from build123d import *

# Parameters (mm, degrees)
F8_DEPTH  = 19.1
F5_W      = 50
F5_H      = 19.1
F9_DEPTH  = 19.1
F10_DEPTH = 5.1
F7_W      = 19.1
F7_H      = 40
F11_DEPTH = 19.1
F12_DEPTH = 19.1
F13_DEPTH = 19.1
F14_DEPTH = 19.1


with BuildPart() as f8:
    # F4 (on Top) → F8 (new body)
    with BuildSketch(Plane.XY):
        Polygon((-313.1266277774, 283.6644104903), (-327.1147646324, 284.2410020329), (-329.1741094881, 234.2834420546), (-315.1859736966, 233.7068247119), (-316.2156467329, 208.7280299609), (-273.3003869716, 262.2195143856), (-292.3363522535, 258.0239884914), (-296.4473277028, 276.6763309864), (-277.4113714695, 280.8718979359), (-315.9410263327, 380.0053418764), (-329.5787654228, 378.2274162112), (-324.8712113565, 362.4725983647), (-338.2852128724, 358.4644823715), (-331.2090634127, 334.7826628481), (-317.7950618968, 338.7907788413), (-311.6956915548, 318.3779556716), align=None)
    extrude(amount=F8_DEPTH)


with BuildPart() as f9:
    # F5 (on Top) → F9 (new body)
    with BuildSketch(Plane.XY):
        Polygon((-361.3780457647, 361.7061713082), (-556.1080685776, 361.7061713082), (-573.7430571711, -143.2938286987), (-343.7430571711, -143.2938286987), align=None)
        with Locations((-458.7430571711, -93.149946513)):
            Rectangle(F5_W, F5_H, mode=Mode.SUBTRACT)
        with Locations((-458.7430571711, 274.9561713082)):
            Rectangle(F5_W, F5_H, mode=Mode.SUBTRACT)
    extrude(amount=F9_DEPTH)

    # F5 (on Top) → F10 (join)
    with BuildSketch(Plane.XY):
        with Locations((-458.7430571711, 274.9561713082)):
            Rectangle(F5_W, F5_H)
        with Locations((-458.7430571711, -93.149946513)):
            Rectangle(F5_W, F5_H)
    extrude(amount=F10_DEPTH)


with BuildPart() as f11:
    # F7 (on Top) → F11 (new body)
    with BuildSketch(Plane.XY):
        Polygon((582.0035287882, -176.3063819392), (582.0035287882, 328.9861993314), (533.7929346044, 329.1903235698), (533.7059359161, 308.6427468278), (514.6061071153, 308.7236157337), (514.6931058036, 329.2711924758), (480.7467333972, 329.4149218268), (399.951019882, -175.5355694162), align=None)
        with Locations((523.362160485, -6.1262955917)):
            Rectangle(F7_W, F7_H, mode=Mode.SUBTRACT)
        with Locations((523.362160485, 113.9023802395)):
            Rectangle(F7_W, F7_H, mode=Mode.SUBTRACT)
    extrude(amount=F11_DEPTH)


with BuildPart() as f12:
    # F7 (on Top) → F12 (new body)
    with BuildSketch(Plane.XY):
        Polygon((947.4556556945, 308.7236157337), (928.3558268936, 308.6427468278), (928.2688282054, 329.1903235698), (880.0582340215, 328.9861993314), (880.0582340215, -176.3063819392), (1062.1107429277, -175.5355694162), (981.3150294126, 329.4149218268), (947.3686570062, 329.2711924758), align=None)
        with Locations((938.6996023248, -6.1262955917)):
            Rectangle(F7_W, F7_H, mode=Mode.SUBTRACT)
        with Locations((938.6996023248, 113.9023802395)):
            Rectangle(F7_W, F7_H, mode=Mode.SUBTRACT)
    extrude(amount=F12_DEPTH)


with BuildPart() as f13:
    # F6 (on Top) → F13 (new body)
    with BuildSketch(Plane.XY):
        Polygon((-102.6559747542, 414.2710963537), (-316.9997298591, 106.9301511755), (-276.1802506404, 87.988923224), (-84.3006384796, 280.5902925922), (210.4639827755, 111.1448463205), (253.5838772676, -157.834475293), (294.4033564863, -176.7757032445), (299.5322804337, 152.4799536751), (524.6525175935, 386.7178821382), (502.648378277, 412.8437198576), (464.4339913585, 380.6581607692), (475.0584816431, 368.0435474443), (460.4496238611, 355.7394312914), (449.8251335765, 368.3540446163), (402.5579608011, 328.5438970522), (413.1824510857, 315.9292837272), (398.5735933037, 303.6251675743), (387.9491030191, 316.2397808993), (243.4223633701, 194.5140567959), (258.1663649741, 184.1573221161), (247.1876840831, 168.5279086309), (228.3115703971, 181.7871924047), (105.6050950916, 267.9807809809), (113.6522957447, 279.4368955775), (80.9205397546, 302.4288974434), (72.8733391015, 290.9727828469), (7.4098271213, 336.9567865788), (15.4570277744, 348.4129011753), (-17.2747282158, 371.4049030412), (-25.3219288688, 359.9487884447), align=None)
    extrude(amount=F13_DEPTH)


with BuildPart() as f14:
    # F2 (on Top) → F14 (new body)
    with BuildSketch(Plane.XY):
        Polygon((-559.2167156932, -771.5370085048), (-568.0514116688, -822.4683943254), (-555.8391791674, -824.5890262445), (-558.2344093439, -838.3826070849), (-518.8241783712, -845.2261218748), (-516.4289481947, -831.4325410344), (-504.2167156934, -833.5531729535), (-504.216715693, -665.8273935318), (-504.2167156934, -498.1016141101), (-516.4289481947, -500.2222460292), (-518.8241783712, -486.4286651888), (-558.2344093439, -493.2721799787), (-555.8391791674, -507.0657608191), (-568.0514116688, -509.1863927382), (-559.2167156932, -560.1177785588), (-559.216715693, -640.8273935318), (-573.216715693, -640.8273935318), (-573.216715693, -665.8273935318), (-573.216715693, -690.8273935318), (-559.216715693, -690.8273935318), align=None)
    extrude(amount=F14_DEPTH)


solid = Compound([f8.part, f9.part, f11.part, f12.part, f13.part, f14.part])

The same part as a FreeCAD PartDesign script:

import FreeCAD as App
import Part
import Sketcher
Q = App.Units.Quantity


def add_polygon(sketch, points):
    """Adds a closed chain of lines whose ends are joined by coincident constraints."""
    first, n = sketch.GeometryCount, len(points)
    for a, b in zip(points, points[1:] + points[:1]):
        sketch.addGeometry(Part.LineSegment(App.Vector(*a, 0), App.Vector(*b, 0)), False)
    for i in range(n):
        sketch.addConstraint(Sketcher.Constraint("Coincident", first + i, 2, first + (i + 1) % n, 1))

doc = App.newDocument("Part")
body = doc.addObject("PartDesign::Body", "Body")

# Sketch on XY plane
sketch1 = body.newObject("Sketcher::SketchObject", "Sketch")
sketch1.AttachmentSupport = (doc.getObject("XY_Plane"), [""])
sketch1.MapMode = "FlatFace"
add_polygon(sketch1, [(-313.126628, 283.66441), (-327.114765, 284.241002), (-329.174109, 234.283442), (-315.185974, 233.706825), (-316.215647, 208.72803), (-273.300387, 262.219514), (-292.336352, 258.023988), (-296.447328, 276.676331), (-277.411371, 280.871898), (-315.941026, 380.005342), (-329.578765, 378.227416), (-324.871211, 362.472598), (-338.285213, 358.464482), (-331.209063, 334.782663), (-317.795062, 338.790779), (-311.695692, 318.377956)])  # lines 0-15
sketch1.addConstraint(Sketcher.Constraint("Distance", 6, Q("19.1 mm")))
sketch1.addConstraint(Sketcher.Constraint("DistanceX", 9, 2, 0, 2, Q("2.464001 mm")))
sketch1.addConstraint(Sketcher.Constraint("DistanceX", 11, 2, 10, 2, Q("13.414002 mm")))
sketch1.addConstraint(Sketcher.Constraint("DistanceX", 12, 2, 13, 2, Q("13.414002 mm")))
sketch1.addConstraint(Sketcher.Constraint("Distance", 12, Q("24.716401 mm")))
sketch1.addConstraint(Sketcher.Constraint("DistanceY", -1, 1, 10, 2, Q("362.472598 mm")))
sketch1.addConstraint(Sketcher.Constraint("DistanceX", 8, 2, 6, 2, Q("19.493699 mm")))
sketch1.addConstraint(Sketcher.Constraint("DistanceY", 7, 2, 10, 2, Q("81.6007 mm")))
sketch1.addConstraint(Sketcher.Constraint("DistanceX", 12, 2, 0, 2, Q("4.094299 mm")))
sketch1.addConstraint(Sketcher.Constraint("DistanceX", 15, 2, 6, 2, Q("16.6793 mm")))
sketch1.addConstraint(Sketcher.Constraint("Distance", 3, Q("25.000008 mm")))
sketch1.addConstraint(Sketcher.Constraint("Distance", 4, Q("68.578848 mm")))
sketch1.addConstraint(Sketcher.Constraint("Distance", 5, Q("19.49283 mm")))
sketch1.addConstraint(Sketcher.Constraint("Distance", 7, Q("19.49283 mm")))
sketch1.addConstraint(Sketcher.Constraint("DistanceX", 1, 2, -1, 1, Q("329.174109 mm")))
sketch1.addConstraint(Sketcher.Constraint("DistanceY", -1, 1, 3, 2, Q("208.72803 mm")))
sketch1.addConstraint(Sketcher.Constraint("DistanceY", -1, 1, 5, 2, Q("258.023988 mm")))
sketch1.addConstraint(Sketcher.Constraint("DistanceY", -1, 1, 6, 2, Q("276.676331 mm")))
sketch1.addConstraint(Sketcher.Constraint("DistanceX", 7, 2, -1, 1, Q("277.411371 mm")))
sketch1.addConstraint(Sketcher.Constraint("DistanceY", -1, 1, 8, 2, Q("380.005342 mm")))
sketch1.addConstraint(Sketcher.Constraint("DistanceX", 10, 2, -1, 1, Q("324.871211 mm")))
sketch1.addConstraint(Sketcher.Constraint("DistanceX", 13, 2, -1, 1, Q("317.795062 mm")))
sketch1.addConstraint(Sketcher.Constraint("DistanceY", -1, 1, 13, 2, Q("338.790779 mm")))
sketch1.addConstraint(Sketcher.Constraint("DistanceX", 14, 2, -1, 1, Q("311.695692 mm")))
sketch1.addConstraint(Sketcher.Constraint("DistanceY", -1, 1, 15, 2, Q("283.66441 mm")))
sketch1.addConstraint(Sketcher.Constraint("DistanceY", 1, 2, 0, 2, Q("49.95756 mm")))
sketch1.addConstraint(Sketcher.Constraint("DistanceX", 0, 2, 2, 2, Q("11.928791 mm")))
sketch1.addConstraint(Sketcher.Constraint("DistanceY", 2, 2, 4, 2, Q("28.51269 mm")))
sketch1.addConstraint(Sketcher.Constraint("DistanceY", 6, 2, 0, 2, Q("7.564671 mm")))
sketch1.addConstraint(Sketcher.Constraint("DistanceY", 7, 2, 9, 2, Q("97.355518 mm")))
sketch1.addConstraint(Sketcher.Constraint("DistanceY", 11, 2, 8, 2, Q("21.54086 mm")))
sketch1.addConstraint(Sketcher.Constraint("Distance", 14, Q("21.304593 mm")))
pad1 = body.newObject("PartDesign::Pad", "Pad")
pad1.Profile = sketch1
pad1.Length = 19.1
body2 = doc.addObject("PartDesign::Body", "Body001")

# Sketch on XY plane
sketch2 = body2.newObject("Sketcher::SketchObject", "Sketch001")
sketch2.AttachmentSupport = (doc.getObject("XY_Plane001"), [""])
sketch2.MapMode = "FlatFace"
add_polygon(sketch2, [(-361, 362), (-556, 362), (-574, -143), (-344, -143)])  # lines 0-3
add_polygon(sketch2, [(-434, -103), (-484, -103), (-484, -84), (-434, -84)])  # lines 4-7
add_polygon(sketch2, [(-434, 265), (-484, 265), (-484, 285), (-434, 285)])  # lines 8-11
sketch2.addConstraint(Sketcher.Constraint("Horizontal", 0))
sketch2.addConstraint(Sketcher.Constraint("Horizontal", 2))
sketch2.addConstraint(Sketcher.Constraint("Horizontal", 4))
sketch2.addConstraint(Sketcher.Constraint("Vertical", 5))
sketch2.addConstraint(Sketcher.Constraint("Horizontal", 6))
sketch2.addConstraint(Sketcher.Constraint("Vertical", 7))
sketch2.addConstraint(Sketcher.Constraint("Horizontal", 8))
sketch2.addConstraint(Sketcher.Constraint("Vertical", 9))
sketch2.addConstraint(Sketcher.Constraint("Horizontal", 10))
sketch2.addConstraint(Sketcher.Constraint("Vertical", 11))
sketch2.addConstraint(Sketcher.Constraint("Vertical", 5, 2, 8, 2))
sketch2.addConstraint(Sketcher.Constraint("Vertical", 7, 2, 10, 2))
sketch2.addConstraint(Sketcher.Constraint("Equal", 7, 9))
sketch2.addConstraint(Sketcher.Constraint("Equal", 1, 3))
sketch2.addConstraint(Sketcher.Constraint("DistanceX", 2, 1, 2, 2, Q("230 mm")))
sketch2.addConstraint(Sketcher.Constraint("DistanceX", 4, 2, 4, 1, Q("50 mm")))
sketch2.addConstraint(Sketcher.Constraint("Angle", 1, Q("-92 deg")))
sketch2.addConstraint(Sketcher.Constraint("DistanceY", 5, 1, 5, 2, Q("19.1 mm")))
sketch2.addConstraint(Sketcher.Constraint("DistanceY", 1, 2, 0, 2, Q("505 mm")))
sketch2.addConstraint(Sketcher.Constraint("DistanceX", 1, 2, 4, 2, Q("90 mm")))
sketch2.addConstraint(Sketcher.Constraint("DistanceY", 8, 2, 0, 2, Q("96.3 mm")))
sketch2.addConstraint(Sketcher.Constraint("DistanceX", 0, 2, -1, 1, Q("556.108069 mm")))
sketch2.addConstraint(Sketcher.Constraint("DistanceY", -1, 1, 0, 2, Q("361.706171 mm")))
sketch2.addConstraint(Sketcher.Constraint("DistanceY", 4, 2, -1, 1, Q("102.699947 mm")))
pad2 = body2.newObject("PartDesign::Pad", "Pad001")
pad2.Profile = sketch2
pad2.Length = 19.1

# Sketch on XY plane
sketch3 = body2.newObject("Sketcher::SketchObject", "Sketch002")
sketch3.AttachmentSupport = (doc.getObject("XY_Plane001"), [""])
sketch3.MapMode = "FlatFace"
add_polygon(sketch3, [(-484, 285), (-484, 265), (-434, 265), (-434, 285)])  # lines 0-3
add_polygon(sketch3, [(-484, -84), (-484, -103), (-434, -103), (-434, -84)])  # lines 4-7
sketch3.addConstraint(Sketcher.Constraint("Vertical", 0))
sketch3.addConstraint(Sketcher.Constraint("Horizontal", 1))
sketch3.addConstraint(Sketcher.Constraint("Vertical", 2))
sketch3.addConstraint(Sketcher.Constraint("Horizontal", 3))
sketch3.addConstraint(Sketcher.Constraint("Vertical", 4))
sketch3.addConstraint(Sketcher.Constraint("Horizontal", 5))
sketch3.addConstraint(Sketcher.Constraint("Vertical", 6))
sketch3.addConstraint(Sketcher.Constraint("Horizontal", 7))
sketch3.addConstraint(Sketcher.Constraint("Vertical", 3, 2, 4, 2))
sketch3.addConstraint(Sketcher.Constraint("Vertical", 2, 2, 5, 2))
sketch3.addConstraint(Sketcher.Constraint("Equal", 2, 4))
sketch3.addConstraint(Sketcher.Constraint("DistanceX", 1, 1, 1, 2, Q("50 mm")))
sketch3.addConstraint(Sketcher.Constraint("DistanceY", 0, 2, 0, 1, Q("19.1 mm")))
sketch3.addConstraint(Sketcher.Constraint("DistanceY", -1, 1, 0, 2, Q("265.406171 mm")))
sketch3.addConstraint(Sketcher.Constraint("DistanceX", 0, 2, -1, 1, Q("483.743057 mm")))
sketch3.addConstraint(Sketcher.Constraint("DistanceY", 4, 2, -1, 1, Q("102.699947 mm")))
pad3 = body2.newObject("PartDesign::Pad", "Pad002")
pad3.Profile = sketch3
pad3.Length = 5.1
body3 = doc.addObject("PartDesign::Body", "Body002")

# Sketch on XY plane
sketch4 = body3.newObject("Sketcher::SketchObject", "Sketch003")
sketch4.AttachmentSupport = (doc.getObject("XY_Plane002"), [""])
sketch4.MapMode = "FlatFace"
add_polygon(sketch4, [(582.003529, -176.306382), (582.003529, 328.986199), (533.792935, 329.190324), (533.705936, 308.642747), (514.606107, 308.723616), (514.693106, 329.271192), (480.746733, 329.414922), (399.95102, -175.535569)])  # lines 0-7
add_polygon(sketch4, [(532.91216, -26.126296), (513.81216, -26.126296), (513.81216, 13.873704), (532.91216, 13.873704)])  # lines 8-11
add_polygon(sketch4, [(532.91216, 93.90238), (513.81216, 93.90238), (513.81216, 133.90238), (532.91216, 133.90238)])  # lines 12-15
sketch4.addConstraint(Sketcher.Constraint("Vertical", 0))
sketch4.addConstraint(Sketcher.Constraint("Horizontal", 8))
sketch4.addConstraint(Sketcher.Constraint("Vertical", 9))
sketch4.addConstraint(Sketcher.Constraint("Horizontal", 10))
sketch4.addConstraint(Sketcher.Constraint("Vertical", 11))
sketch4.addConstraint(Sketcher.Constraint("Horizontal", 12))
sketch4.addConstraint(Sketcher.Constraint("Vertical", 13))
sketch4.addConstraint(Sketcher.Constraint("Horizontal", 14))
sketch4.addConstraint(Sketcher.Constraint("Vertical", 15))
sketch4.addConstraint(Sketcher.Constraint("DistanceY", 9, 1, 9, 2, Q("40 mm")))
sketch4.addConstraint(Sketcher.Constraint("DistanceY", 13, 1, 13, 2, Q("40 mm")))
sketch4.addConstraint(Sketcher.Constraint("DistanceX", 8, 2, 8, 1, Q("19.1 mm")))
sketch4.addConstraint(Sketcher.Constraint("DistanceX", 12, 2, 12, 1, Q("19.1 mm")))
sketch4.addConstraint(Sketcher.Constraint("Distance", 3, Q("19.1 mm")))
sketch4.addConstraint(Sketcher.Constraint("DistanceX", 12, 2, 10, 2, Q("19.1 mm")))
sketch4.addConstraint(Sketcher.Constraint("DistanceX", 2, 2, 1, 2, Q("0.086999 mm")))
sketch4.addConstraint(Sketcher.Constraint("DistanceX", 3, 2, 4, 2, Q("0.086999 mm")))
sketch4.addConstraint(Sketcher.Constraint("DistanceY", 0, 1, 0, 2, Q("505.292581 mm")))
sketch4.addConstraint(Sketcher.Constraint("DistanceY", -1, 1, 0, 2, Q("328.986199 mm")))
sketch4.addConstraint(Sketcher.Constraint("DistanceX", 5, 2, 1, 2, Q("53.046201 mm")))
sketch4.addConstraint(Sketcher.Constraint("DistanceY", 1, 2, 5, 2, Q("0.224598 mm")))
sketch4.addConstraint(Sketcher.Constraint("Distance", 2, Q("20.547761 mm")))
sketch4.addConstraint(Sketcher.Constraint("Distance", 4, Q("20.547761 mm")))
sketch4.addConstraint(Sketcher.Constraint("Distance", 7, Q("182.054141 mm")))
sketch4.addConstraint(Sketcher.Constraint("DistanceX", -1, 1, 0, 2, Q("582.003529 mm")))
sketch4.addConstraint(Sketcher.Constraint("DistanceY", -1, 1, 5, 2, Q("329.414922 mm")))
sketch4.addConstraint(Sketcher.Constraint("DistanceX", -1, 1, 6, 2, Q("399.95102 mm")))
sketch4.addConstraint(Sketcher.Constraint("DistanceX", -1, 1, 8, 2, Q("513.81216 mm")))
sketch4.addConstraint(Sketcher.Constraint("DistanceY", -1, 1, 12, 2, Q("93.90238 mm")))
sketch4.addConstraint(Sketcher.Constraint("DistanceY", 2, 2, 3, 2, Q("0.080869 mm")))
sketch4.addConstraint(Sketcher.Constraint("DistanceX", 3, 2, 0, 2, Q("67.397422 mm")))
sketch4.addConstraint(Sketcher.Constraint("DistanceY", 8, 2, 3, 2, Q("334.849911 mm")))
pad4 = body3.newObject("PartDesign::Pad", "Pad003")
pad4.Profile = sketch4
pad4.Length = 19.1
body4 = doc.addObject("PartDesign::Body", "Body003")

# Sketch on XY plane
sketch5 = body4.newObject("Sketcher::SketchObject", "Sketch004")
sketch5.AttachmentSupport = (doc.getObject("XY_Plane003"), [""])
sketch5.MapMode = "FlatFace"
add_polygon(sketch5, [(947.455656, 308.723616), (928.355827, 308.642747), (928.268828, 329.190324), (880.058234, 328.986199), (880.058234, -176.306382), (1062.110743, -175.535569), (981.315029, 329.414922), (947.368657, 329.271192)])  # lines 0-7
add_polygon(sketch5, [(948.249602, -26.126296), (929.149602, -26.126296), (929.149602, 13.873704), (948.249602, 13.873704)])  # lines 8-11
add_polygon(sketch5, [(948.249602, 93.90238), (929.149602, 93.90238), (929.149602, 133.90238), (948.249602, 133.90238)])  # lines 12-15
sketch5.addConstraint(Sketcher.Constraint("Vertical", 3))
sketch5.addConstraint(Sketcher.Constraint("Horizontal", 8))
sketch5.addConstraint(Sketcher.Constraint("Vertical", 9))
sketch5.addConstraint(Sketcher.Constraint("Horizontal", 10))
sketch5.addConstraint(Sketcher.Constraint("Vertical", 11))
sketch5.addConstraint(Sketcher.Constraint("Horizontal", 12))
sketch5.addConstraint(Sketcher.Constraint("Vertical", 13))
sketch5.addConstraint(Sketcher.Constraint("Horizontal", 14))
sketch5.addConstraint(Sketcher.Constraint("Vertical", 15))
sketch5.addConstraint(Sketcher.Constraint("DistanceY", 9, 1, 9, 2, Q("40 mm")))
sketch5.addConstraint(Sketcher.Constraint("DistanceY", 13, 1, 13, 2, Q("40 mm")))
sketch5.addConstraint(Sketcher.Constraint("DistanceX", 8, 2, 8, 1, Q("19.1 mm")))
sketch5.addConstraint(Sketcher.Constraint("DistanceX", 12, 2, 12, 1, Q("19.1 mm")))
sketch5.addConstraint(Sketcher.Constraint("Distance", 0, Q("19.1 mm")))
sketch5.addConstraint(Sketcher.Constraint("DistanceX", 12, 2, 10, 2, Q("19.1 mm")))
sketch5.addConstraint(Sketcher.Constraint("DistanceX", 1, 2, 0, 2, Q("0.086999 mm")))
sketch5.addConstraint(Sketcher.Constraint("DistanceX", 6, 2, 7, 2, Q("0.086999 mm")))
sketch5.addConstraint(Sketcher.Constraint("DistanceY", 3, 2, 3, 1, Q("505.292581 mm")))
sketch5.addConstraint(Sketcher.Constraint("DistanceY", -1, 1, 2, 2, Q("328.986199 mm")))
sketch5.addConstraint(Sketcher.Constraint("DistanceX", 1, 2, 5, 2, Q("53.046201 mm")))
sketch5.addConstraint(Sketcher.Constraint("DistanceY", 1, 2, 5, 2, Q("0.224598 mm")))
sketch5.addConstraint(Sketcher.Constraint("Distance", 1, Q("20.547761 mm")))
sketch5.addConstraint(Sketcher.Constraint("Distance", 4, Q("182.054141 mm")))
sketch5.addConstraint(Sketcher.Constraint("Distance", 7, Q("20.547761 mm")))
sketch5.addConstraint(Sketcher.Constraint("DistanceX", -1, 1, 1, 2, Q("928.268828 mm")))
sketch5.addConstraint(Sketcher.Constraint("DistanceY", 4, 2, -1, 1, Q("175.535569 mm")))
sketch5.addConstraint(Sketcher.Constraint("DistanceY", -1, 1, 5, 2, Q("329.414922 mm")))
sketch5.addConstraint(Sketcher.Constraint("DistanceY", -1, 1, 12, 2, Q("93.90238 mm")))
sketch5.addConstraint(Sketcher.Constraint("DistanceY", 1, 2, 6, 2, Q("0.080869 mm")))
sketch5.addConstraint(Sketcher.Constraint("DistanceX", 2, 2, 7, 2, Q("67.397422 mm")))
sketch5.addConstraint(Sketcher.Constraint("DistanceX", 3, 2, 8, 2, Q("49.091368 mm")))
sketch5.addConstraint(Sketcher.Constraint("DistanceY", 8, 2, 7, 2, Q("334.849911 mm")))
pad5 = body4.newObject("PartDesign::Pad", "Pad004")
pad5.Profile = sketch5
pad5.Length = 19.1
body5 = doc.addObject("PartDesign::Body", "Body004")

# Sketch on XY plane
sketch6 = body5.newObject("Sketcher::SketchObject", "Sketch005")
sketch6.AttachmentSupport = (doc.getObject("XY_Plane004"), [""])
sketch6.MapMode = "FlatFace"
add_polygon(sketch6, [(-103, 414), (-317, 107), (-276, 88), (-84, 281), (210, 111), (254, -158), (294, -177), (300, 152), (525, 387), (503, 413), (464, 381), (475, 368), (460, 356), (450, 368), (403, 329), (413, 316), (399, 304), (388, 316), (243, 195), (258, 184), (247, 169), (228, 182), (106, 268), (114, 279), (81, 302), (73, 291), (7, 337), (15, 348), (-17, 371), (-25, 360)])  # lines 0-29
sketch6.addConstraint(Sketcher.Constraint("Parallel", 1, 5))
sketch6.addConstraint(Sketcher.Constraint("Perpendicular", 8, 9))
sketch6.addConstraint(Sketcher.Constraint("Perpendicular", 9, 10))
sketch6.addConstraint(Sketcher.Constraint("Perpendicular", 10, 11))
sketch6.addConstraint(Sketcher.Constraint("Perpendicular", 11, 12))
sketch6.addConstraint(Sketcher.Constraint("Perpendicular", 12, 13))
sketch6.addConstraint(Sketcher.Constraint("Perpendicular", 13, 14))
sketch6.addConstraint(Sketcher.Constraint("Perpendicular", 14, 15))
sketch6.addConstraint(Sketcher.Constraint("Perpendicular", 15, 16))
sketch6.addConstraint(Sketcher.Constraint("Perpendicular", 16, 17))
sketch6.addConstraint(Sketcher.Constraint("Perpendicular", 18, 19))
sketch6.addConstraint(Sketcher.Constraint("Perpendicular", 19, 20))
sketch6.addConstraint(Sketcher.Constraint("Parallel", 20, 21))
sketch6.addConstraint(Sketcher.Constraint("Perpendicular", 21, 22))
sketch6.addConstraint(Sketcher.Constraint("Perpendicular", 22, 23))
sketch6.addConstraint(Sketcher.Constraint("Perpendicular", 23, 24))
sketch6.addConstraint(Sketcher.Constraint("Perpendicular", 24, 25))
sketch6.addConstraint(Sketcher.Constraint("Perpendicular", 25, 26))
sketch6.addConstraint(Sketcher.Constraint("Perpendicular", 26, 27))
sketch6.addConstraint(Sketcher.Constraint("Perpendicular", 27, 28))
sketch6.addConstraint(Sketcher.Constraint("Perpendicular", 28, 29))
sketch6.addConstraint(Sketcher.Constraint("Equal", 1, 5))
sketch6.addConstraint(Sketcher.Constraint("Equal", 10, 12))
sketch6.addConstraint(Sketcher.Constraint("Equal", 12, 14))
sketch6.addConstraint(Sketcher.Constraint("Equal", 11, 15))
sketch6.addConstraint(Sketcher.Constraint("Equal", 14, 16))
sketch6.addConstraint(Sketcher.Constraint("Equal", 15, 19))
sketch6.addConstraint(Sketcher.Constraint("Equal", 22, 24))
sketch6.addConstraint(Sketcher.Constraint("Equal", 24, 26))
sketch6.addConstraint(Sketcher.Constraint("Equal", 23, 27))
sketch6.addConstraint(Sketcher.Constraint("Equal", 26, 28))
sketch6.addConstraint(Sketcher.Constraint("Distance", 1, Q("45 mm")))
sketch6.addConstraint(Sketcher.Constraint("Distance", 22, Q("14 mm")))
sketch6.addConstraint(Sketcher.Constraint("Distance", 23, Q("40 mm")))
sketch6.addConstraint(Sketcher.Constraint("Distance", 25, Q("80 mm")))
sketch6.addConstraint(Sketcher.Constraint("Distance", 11, Q("19.1 mm")))
sketch6.addConstraint(Sketcher.Constraint("DistanceX", 17, 2, 18, 2, Q("14.744002 mm")))
sketch6.addConstraint(Sketcher.Constraint("DistanceY", 22, 2, 23, 2, Q("22.992002 mm")))
sketch6.addConstraint(Sketcher.Constraint("Distance", 6, Q("329.295602 mm")))
sketch6.addConstraint(Sketcher.Constraint("Distance", 8, Q("34.157599 mm")))
sketch6.addConstraint(Sketcher.Constraint("DistanceY", -1, 1, 26, 2, Q("348.412901 mm")))
sketch6.addConstraint(Sketcher.Constraint("DistanceY", 4, 2, 1, 2, Q("245.823399 mm")))
sketch6.addConstraint(Sketcher.Constraint("DistanceX", 4, 2, 8, 2, Q("249.064501 mm")))
sketch6.addConstraint(Sketcher.Constraint("DistanceX", 6, 2, 10, 2, Q("175.526201 mm")))
sketch6.addConstraint(Sketcher.Constraint("DistanceX", 3, 2, 10, 2, Q("264.594499 mm")))
sketch6.addConstraint(Sketcher.Constraint("DistanceY", 3, 2, 10, 2, Q("256.898701 mm")))
sketch6.addConstraint(Sketcher.Constraint("DistanceX", 3, 2, 19, 2, Q("36.723701 mm")))
sketch6.addConstraint(Sketcher.Constraint("DistanceX", 29, 2, 25, 2, Q("110.065802 mm")))
sketch6.addConstraint(Sketcher.Constraint("Distance", 0, Q("374.702151 mm")))
sketch6.addConstraint(Sketcher.Constraint("Distance", 2, Q("271.869588 mm")))
sketch6.addConstraint(Sketcher.Constraint("Distance", 7, Q("324.879252 mm")))
sketch6.addConstraint(Sketcher.Constraint("Distance", 9, Q("49.962482 mm")))
sketch6.addConstraint(Sketcher.Constraint("Distance", 13, Q("61.798329 mm")))
sketch6.addConstraint(Sketcher.Constraint("Distance", 21, Q("149.954039 mm")))
sketch6.addConstraint(Sketcher.Constraint("DistanceX", 0, 2, -1, 1, Q("316.99973 mm")))
sketch6.addConstraint(Sketcher.Constraint("DistanceY", -1, 1, 0, 2, Q("106.930151 mm")))
sketch6.addConstraint(Sketcher.Constraint("DistanceX", 1, 2, -1, 1, Q("276.180251 mm")))
sketch6.addConstraint(Sketcher.Constraint("DistanceX", 2, 2, -1, 1, Q("84.300638 mm")))
sketch6.addConstraint(Sketcher.Constraint("DistanceX", -1, 1, 6, 2, Q("299.53228 mm")))
sketch6.addConstraint(Sketcher.Constraint("DistanceX", -1, 1, 8, 2, Q("502.648378 mm")))
pad6 = body5.newObject("PartDesign::Pad", "Pad005")
pad6.Profile = sketch6
pad6.Length = 19.1
body6 = doc.addObject("PartDesign::Body", "Body005")

# Sketch on XY plane
sketch7 = body6.newObject("Sketcher::SketchObject", "Sketch006")
sketch7.AttachmentSupport = (doc.getObject("XY_Plane005"), [""])
sketch7.MapMode = "FlatFace"
add_polygon(sketch7, [(-559, -772), (-568, -822), (-556, -825), (-558, -838), (-519, -845), (-516, -831), (-504, -834), (-504, -666), (-504, -498), (-516, -500), (-519, -486), (-558, -493), (-556, -507), (-568, -509), (-559, -560), (-559, -641), (-573, -641), (-573, -691), (-559, -691)])  # lines 0-18
sketch7.addConstraint(Sketcher.Constraint("Vertical", 6))
sketch7.addConstraint(Sketcher.Constraint("Vertical", 7))
sketch7.addConstraint(Sketcher.Constraint("Vertical", 14))
sketch7.addConstraint(Sketcher.Constraint("Horizontal", 15))
sketch7.addConstraint(Sketcher.Constraint("Vertical", 16))
sketch7.addConstraint(Sketcher.Constraint("Horizontal", 17))
sketch7.addConstraint(Sketcher.Constraint("Vertical", 18))
sketch7.addConstraint(Sketcher.Constraint("Perpendicular", 1, 2))
sketch7.addConstraint(Sketcher.Constraint("Perpendicular", 2, 3))
sketch7.addConstraint(Sketcher.Constraint("Perpendicular", 3, 4))
sketch7.addConstraint(Sketcher.Constraint("Perpendicular", 4, 5))
sketch7.addConstraint(Sketcher.Constraint("Perpendicular", 8, 9))
sketch7.addConstraint(Sketcher.Constraint("Perpendicular", 9, 10))
sketch7.addConstraint(Sketcher.Constraint("Perpendicular", 10, 11))
sketch7.addConstraint(Sketcher.Constraint("Perpendicular", 11, 12))
sketch7.addConstraint(Sketcher.Constraint("Vertical", 4, 2, 8, 2))
sketch7.addConstraint(Sketcher.Constraint("Vertical", 3, 2, 9, 2))
sketch7.addConstraint(Sketcher.Constraint("Vertical", 2, 2, 10, 2))
sketch7.addConstraint(Sketcher.Constraint("Vertical", 1, 2, 11, 2))
sketch7.addConstraint(Sketcher.Constraint("Vertical", 0, 2, 12, 2))
sketch7.addConstraint(Sketcher.Constraint("Vertical", 14, 2, 17, 2))
sketch7.addConstraint(Sketcher.Constraint("Equal", 6, 7))
sketch7.addConstraint(Sketcher.Constraint("Equal", 14, 18))
sketch7.addConstraint(Sketcher.Constraint("Equal", 2, 4))
sketch7.addConstraint(Sketcher.Constraint("Equal", 1, 5))
sketch7.addConstraint(Sketcher.Constraint("Equal", 5, 8))
sketch7.addConstraint(Sketcher.Constraint("Equal", 0, 13))
sketch7.addConstraint(Sketcher.Constraint("DistanceX", 15, 2, 15, 1, Q("14 mm")))
sketch7.addConstraint(Sketcher.Constraint("DistanceY", 16, 2, 16, 1, Q("50 mm")))
sketch7.addConstraint(Sketcher.Constraint("Distance", 2, Q("14 mm")))
sketch7.addConstraint(Sketcher.Constraint("Distance", 3, Q("40 mm")))
sketch7.addConstraint(Sketcher.Constraint("DistanceX", 13, 2, 7, 2, Q("55 mm")))
sketch7.addConstraint(Sketcher.Constraint("DistanceX", 1, 2, 3, 2, Q("37.015001 mm")))
sketch7.addConstraint(Sketcher.Constraint("DistanceY", 0, 2, 6, 2, Q("156.641001 mm")))
sketch7.addConstraint(Sketcher.Constraint("DistanceY", 6, 1, 6, 2, Q("167.725779 mm")))
sketch7.addConstraint(Sketcher.Constraint("DistanceY", 13, 2, 10, 2, Q("66.845599 mm")))
sketch7.addConstraint(Sketcher.Constraint("DistanceX", 0, 2, -1, 1, Q("568.051412 mm")))
sketch7.addConstraint(Sketcher.Constraint("DistanceY", 3, 2, -1, 1, Q("845.226122 mm")))
pad7 = body6.newObject("PartDesign::Pad", "Pad006")
pad7.Profile = sketch7
pad7.Length = 19.1

doc.recompute()
